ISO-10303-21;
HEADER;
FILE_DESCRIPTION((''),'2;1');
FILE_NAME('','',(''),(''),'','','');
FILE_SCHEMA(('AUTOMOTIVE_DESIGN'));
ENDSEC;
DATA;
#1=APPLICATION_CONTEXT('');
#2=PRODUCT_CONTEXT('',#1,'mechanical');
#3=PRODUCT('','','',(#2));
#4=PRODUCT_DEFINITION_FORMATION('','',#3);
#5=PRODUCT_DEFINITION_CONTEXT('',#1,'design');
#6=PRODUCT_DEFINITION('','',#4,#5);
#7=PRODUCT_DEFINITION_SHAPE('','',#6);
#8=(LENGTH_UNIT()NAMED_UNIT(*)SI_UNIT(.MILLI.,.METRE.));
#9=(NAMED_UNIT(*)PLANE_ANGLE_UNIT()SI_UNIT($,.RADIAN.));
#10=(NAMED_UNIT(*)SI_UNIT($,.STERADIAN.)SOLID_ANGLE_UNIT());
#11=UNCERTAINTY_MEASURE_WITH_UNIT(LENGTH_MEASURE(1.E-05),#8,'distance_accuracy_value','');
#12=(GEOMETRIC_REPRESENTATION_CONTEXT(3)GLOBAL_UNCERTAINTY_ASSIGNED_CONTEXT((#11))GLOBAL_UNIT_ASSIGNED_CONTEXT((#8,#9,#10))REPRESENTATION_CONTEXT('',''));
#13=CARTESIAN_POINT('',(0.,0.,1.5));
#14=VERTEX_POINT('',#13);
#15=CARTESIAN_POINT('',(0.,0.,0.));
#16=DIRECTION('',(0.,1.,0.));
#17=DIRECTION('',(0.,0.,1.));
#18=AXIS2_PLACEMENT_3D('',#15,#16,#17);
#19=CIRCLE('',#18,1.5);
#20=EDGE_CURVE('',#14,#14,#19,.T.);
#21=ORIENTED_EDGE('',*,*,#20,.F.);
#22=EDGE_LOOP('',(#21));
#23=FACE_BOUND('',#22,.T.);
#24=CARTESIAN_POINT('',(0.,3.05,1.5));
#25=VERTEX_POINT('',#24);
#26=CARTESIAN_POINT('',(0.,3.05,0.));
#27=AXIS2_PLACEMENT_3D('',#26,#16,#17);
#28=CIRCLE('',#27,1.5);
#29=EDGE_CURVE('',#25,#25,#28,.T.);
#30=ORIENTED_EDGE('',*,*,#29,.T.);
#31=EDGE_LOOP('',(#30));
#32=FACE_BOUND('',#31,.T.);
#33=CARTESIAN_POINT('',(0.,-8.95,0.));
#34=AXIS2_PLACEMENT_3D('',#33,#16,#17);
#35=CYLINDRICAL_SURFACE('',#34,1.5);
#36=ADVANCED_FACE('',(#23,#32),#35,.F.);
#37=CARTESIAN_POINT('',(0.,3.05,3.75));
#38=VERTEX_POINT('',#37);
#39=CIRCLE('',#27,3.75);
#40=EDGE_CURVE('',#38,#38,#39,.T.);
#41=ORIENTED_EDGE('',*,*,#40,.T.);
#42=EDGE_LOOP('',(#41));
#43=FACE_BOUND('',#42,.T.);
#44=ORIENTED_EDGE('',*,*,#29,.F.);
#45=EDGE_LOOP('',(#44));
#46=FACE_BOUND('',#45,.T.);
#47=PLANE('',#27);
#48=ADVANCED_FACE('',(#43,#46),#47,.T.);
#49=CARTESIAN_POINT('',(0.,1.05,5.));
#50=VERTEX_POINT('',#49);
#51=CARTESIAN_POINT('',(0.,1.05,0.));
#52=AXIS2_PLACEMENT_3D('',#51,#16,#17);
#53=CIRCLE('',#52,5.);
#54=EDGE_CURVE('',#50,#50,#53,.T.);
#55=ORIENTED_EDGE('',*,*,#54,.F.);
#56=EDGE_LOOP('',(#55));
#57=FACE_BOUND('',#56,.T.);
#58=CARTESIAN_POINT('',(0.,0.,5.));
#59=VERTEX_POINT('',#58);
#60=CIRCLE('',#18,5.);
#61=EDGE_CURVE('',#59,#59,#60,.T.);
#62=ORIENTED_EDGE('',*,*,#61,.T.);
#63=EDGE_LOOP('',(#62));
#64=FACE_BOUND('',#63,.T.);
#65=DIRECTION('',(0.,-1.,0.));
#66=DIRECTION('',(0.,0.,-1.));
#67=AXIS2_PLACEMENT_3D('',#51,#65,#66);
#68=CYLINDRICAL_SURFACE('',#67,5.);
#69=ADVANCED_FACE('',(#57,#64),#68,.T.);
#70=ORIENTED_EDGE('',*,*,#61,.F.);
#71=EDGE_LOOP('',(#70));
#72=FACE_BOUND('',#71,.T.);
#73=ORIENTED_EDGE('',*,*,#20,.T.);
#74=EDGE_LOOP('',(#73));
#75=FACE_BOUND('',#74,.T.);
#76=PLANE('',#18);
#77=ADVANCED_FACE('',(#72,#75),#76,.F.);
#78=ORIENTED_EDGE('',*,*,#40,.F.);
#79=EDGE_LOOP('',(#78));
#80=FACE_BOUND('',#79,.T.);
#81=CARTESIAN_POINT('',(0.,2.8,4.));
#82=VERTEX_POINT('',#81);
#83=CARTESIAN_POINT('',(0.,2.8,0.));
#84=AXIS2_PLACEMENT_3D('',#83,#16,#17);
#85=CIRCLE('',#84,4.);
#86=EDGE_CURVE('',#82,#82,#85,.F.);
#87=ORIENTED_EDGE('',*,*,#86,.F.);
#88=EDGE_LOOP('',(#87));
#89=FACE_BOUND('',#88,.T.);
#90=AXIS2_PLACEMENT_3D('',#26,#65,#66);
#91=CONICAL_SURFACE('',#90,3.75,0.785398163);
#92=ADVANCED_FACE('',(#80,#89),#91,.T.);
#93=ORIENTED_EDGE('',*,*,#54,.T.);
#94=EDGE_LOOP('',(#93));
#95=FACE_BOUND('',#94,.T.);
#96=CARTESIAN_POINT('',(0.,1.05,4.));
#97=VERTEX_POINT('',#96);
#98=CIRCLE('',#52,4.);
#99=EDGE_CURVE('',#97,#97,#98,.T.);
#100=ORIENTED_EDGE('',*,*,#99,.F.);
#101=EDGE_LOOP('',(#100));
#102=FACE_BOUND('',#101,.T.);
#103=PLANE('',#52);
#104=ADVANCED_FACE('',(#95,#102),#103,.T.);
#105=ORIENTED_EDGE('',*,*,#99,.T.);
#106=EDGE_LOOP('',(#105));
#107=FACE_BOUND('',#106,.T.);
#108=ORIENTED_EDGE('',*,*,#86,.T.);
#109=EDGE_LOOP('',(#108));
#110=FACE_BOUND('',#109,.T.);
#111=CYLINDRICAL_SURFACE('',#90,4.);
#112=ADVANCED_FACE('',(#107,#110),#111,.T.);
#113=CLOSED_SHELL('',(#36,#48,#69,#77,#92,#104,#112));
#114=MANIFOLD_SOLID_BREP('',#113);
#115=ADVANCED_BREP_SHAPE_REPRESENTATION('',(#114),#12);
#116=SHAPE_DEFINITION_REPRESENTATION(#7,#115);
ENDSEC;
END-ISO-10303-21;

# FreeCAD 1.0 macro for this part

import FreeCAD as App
import Part
import Sketcher
Q = App.Units.Quantity


def edges_at(feature, points):
    """Names of the edges that pass closest to the given points."""
    edges = feature.Shape.Edges
    near = lambda p: min(range(len(edges)), key=lambda i: edges[i].distToShape(Part.Vertex(*p))[0])
    return sorted({f"Edge{near(p) + 1}" for p in points})

doc = App.newDocument("Part")
body = doc.addObject("PartDesign::Body", "Body")

# Sketch on XZ plane
sketch1 = body.newObject("Sketcher::SketchObject", "Sketch")
sketch1.AttachmentSupport = (doc.getObject("XZ_Plane"), [""])
sketch1.MapMode = "FlatFace"
sketch1.addGeometry(Part.Circle(App.Vector(0, 0, 0), App.Vector(0, 0, 1), 5), False)
sketch1.addConstraint([
    Sketcher.Constraint("Coincident", 0, 3, -1, 1),
    Sketcher.Constraint("Diameter", 0, Q("10 mm")),
])
pad1 = body.newObject("PartDesign::Pad", "Pad")
pad1.Profile = sketch1
pad1.Length = 1.05
pad1.Reversed = True

# Sketch on XZ plane
sketch2 = body.newObject("Sketcher::SketchObject", "Sketch001")
sketch2.AttachmentSupport = (doc.getObject("XZ_Plane"), [""])
sketch2.MapMode = "FlatFace"
sketch2.AttachmentOffset = App.Placement(App.Vector(0, 0, -1.05), App.Rotation())
sketch2.addGeometry(Part.Circle(App.Vector(0, 0, 0), App.Vector(0, 0, 1), 4), False)
sketch2.addConstraint([
    Sketcher.Constraint("Coincident", 0, 3, -1, 1),
    Sketcher.Constraint("Diameter", 0, Q("8 mm")),
])
pad2 = body.newObject("PartDesign::Pad", "Pad001")
pad2.Profile = sketch2
pad2.Length = 2
pad2.Reversed = True

# Sketch on XZ plane
sketch3 = body.newObject("Sketcher::SketchObject", "Sketch002")
sketch3.AttachmentSupport = (doc.getObject("XZ_Plane"), [""])
sketch3.MapMode = "FlatFace"
sketch3.AttachmentOffset = App.Placement(App.Vector(0, 0, -3.05), App.Rotation())
sketch3.addGeometry(Part.Circle(App.Vector(0, 0, 0), App.Vector(0, 0, 1), 1.5), False)
sketch3.addConstraint([
    Sketcher.Constraint("Coincident", 0, 3, -1, 1),
    Sketcher.Constraint("Diameter", 0, Q("3 mm")),
])
pocket1 = body.newObject("PartDesign::Pocket", "Pocket")
pocket1.Profile = sketch3
pocket1.Length = 12
pocket1.Reversed = True
doc.recompute()

chamfer = body.newObject("PartDesign::Chamfer", "Chamfer")
chamfer.Base = (pocket1, edges_at(pocket1, [(-4, 3.05, 0)]))
chamfer.Size = 0.25

doc.recompute()
